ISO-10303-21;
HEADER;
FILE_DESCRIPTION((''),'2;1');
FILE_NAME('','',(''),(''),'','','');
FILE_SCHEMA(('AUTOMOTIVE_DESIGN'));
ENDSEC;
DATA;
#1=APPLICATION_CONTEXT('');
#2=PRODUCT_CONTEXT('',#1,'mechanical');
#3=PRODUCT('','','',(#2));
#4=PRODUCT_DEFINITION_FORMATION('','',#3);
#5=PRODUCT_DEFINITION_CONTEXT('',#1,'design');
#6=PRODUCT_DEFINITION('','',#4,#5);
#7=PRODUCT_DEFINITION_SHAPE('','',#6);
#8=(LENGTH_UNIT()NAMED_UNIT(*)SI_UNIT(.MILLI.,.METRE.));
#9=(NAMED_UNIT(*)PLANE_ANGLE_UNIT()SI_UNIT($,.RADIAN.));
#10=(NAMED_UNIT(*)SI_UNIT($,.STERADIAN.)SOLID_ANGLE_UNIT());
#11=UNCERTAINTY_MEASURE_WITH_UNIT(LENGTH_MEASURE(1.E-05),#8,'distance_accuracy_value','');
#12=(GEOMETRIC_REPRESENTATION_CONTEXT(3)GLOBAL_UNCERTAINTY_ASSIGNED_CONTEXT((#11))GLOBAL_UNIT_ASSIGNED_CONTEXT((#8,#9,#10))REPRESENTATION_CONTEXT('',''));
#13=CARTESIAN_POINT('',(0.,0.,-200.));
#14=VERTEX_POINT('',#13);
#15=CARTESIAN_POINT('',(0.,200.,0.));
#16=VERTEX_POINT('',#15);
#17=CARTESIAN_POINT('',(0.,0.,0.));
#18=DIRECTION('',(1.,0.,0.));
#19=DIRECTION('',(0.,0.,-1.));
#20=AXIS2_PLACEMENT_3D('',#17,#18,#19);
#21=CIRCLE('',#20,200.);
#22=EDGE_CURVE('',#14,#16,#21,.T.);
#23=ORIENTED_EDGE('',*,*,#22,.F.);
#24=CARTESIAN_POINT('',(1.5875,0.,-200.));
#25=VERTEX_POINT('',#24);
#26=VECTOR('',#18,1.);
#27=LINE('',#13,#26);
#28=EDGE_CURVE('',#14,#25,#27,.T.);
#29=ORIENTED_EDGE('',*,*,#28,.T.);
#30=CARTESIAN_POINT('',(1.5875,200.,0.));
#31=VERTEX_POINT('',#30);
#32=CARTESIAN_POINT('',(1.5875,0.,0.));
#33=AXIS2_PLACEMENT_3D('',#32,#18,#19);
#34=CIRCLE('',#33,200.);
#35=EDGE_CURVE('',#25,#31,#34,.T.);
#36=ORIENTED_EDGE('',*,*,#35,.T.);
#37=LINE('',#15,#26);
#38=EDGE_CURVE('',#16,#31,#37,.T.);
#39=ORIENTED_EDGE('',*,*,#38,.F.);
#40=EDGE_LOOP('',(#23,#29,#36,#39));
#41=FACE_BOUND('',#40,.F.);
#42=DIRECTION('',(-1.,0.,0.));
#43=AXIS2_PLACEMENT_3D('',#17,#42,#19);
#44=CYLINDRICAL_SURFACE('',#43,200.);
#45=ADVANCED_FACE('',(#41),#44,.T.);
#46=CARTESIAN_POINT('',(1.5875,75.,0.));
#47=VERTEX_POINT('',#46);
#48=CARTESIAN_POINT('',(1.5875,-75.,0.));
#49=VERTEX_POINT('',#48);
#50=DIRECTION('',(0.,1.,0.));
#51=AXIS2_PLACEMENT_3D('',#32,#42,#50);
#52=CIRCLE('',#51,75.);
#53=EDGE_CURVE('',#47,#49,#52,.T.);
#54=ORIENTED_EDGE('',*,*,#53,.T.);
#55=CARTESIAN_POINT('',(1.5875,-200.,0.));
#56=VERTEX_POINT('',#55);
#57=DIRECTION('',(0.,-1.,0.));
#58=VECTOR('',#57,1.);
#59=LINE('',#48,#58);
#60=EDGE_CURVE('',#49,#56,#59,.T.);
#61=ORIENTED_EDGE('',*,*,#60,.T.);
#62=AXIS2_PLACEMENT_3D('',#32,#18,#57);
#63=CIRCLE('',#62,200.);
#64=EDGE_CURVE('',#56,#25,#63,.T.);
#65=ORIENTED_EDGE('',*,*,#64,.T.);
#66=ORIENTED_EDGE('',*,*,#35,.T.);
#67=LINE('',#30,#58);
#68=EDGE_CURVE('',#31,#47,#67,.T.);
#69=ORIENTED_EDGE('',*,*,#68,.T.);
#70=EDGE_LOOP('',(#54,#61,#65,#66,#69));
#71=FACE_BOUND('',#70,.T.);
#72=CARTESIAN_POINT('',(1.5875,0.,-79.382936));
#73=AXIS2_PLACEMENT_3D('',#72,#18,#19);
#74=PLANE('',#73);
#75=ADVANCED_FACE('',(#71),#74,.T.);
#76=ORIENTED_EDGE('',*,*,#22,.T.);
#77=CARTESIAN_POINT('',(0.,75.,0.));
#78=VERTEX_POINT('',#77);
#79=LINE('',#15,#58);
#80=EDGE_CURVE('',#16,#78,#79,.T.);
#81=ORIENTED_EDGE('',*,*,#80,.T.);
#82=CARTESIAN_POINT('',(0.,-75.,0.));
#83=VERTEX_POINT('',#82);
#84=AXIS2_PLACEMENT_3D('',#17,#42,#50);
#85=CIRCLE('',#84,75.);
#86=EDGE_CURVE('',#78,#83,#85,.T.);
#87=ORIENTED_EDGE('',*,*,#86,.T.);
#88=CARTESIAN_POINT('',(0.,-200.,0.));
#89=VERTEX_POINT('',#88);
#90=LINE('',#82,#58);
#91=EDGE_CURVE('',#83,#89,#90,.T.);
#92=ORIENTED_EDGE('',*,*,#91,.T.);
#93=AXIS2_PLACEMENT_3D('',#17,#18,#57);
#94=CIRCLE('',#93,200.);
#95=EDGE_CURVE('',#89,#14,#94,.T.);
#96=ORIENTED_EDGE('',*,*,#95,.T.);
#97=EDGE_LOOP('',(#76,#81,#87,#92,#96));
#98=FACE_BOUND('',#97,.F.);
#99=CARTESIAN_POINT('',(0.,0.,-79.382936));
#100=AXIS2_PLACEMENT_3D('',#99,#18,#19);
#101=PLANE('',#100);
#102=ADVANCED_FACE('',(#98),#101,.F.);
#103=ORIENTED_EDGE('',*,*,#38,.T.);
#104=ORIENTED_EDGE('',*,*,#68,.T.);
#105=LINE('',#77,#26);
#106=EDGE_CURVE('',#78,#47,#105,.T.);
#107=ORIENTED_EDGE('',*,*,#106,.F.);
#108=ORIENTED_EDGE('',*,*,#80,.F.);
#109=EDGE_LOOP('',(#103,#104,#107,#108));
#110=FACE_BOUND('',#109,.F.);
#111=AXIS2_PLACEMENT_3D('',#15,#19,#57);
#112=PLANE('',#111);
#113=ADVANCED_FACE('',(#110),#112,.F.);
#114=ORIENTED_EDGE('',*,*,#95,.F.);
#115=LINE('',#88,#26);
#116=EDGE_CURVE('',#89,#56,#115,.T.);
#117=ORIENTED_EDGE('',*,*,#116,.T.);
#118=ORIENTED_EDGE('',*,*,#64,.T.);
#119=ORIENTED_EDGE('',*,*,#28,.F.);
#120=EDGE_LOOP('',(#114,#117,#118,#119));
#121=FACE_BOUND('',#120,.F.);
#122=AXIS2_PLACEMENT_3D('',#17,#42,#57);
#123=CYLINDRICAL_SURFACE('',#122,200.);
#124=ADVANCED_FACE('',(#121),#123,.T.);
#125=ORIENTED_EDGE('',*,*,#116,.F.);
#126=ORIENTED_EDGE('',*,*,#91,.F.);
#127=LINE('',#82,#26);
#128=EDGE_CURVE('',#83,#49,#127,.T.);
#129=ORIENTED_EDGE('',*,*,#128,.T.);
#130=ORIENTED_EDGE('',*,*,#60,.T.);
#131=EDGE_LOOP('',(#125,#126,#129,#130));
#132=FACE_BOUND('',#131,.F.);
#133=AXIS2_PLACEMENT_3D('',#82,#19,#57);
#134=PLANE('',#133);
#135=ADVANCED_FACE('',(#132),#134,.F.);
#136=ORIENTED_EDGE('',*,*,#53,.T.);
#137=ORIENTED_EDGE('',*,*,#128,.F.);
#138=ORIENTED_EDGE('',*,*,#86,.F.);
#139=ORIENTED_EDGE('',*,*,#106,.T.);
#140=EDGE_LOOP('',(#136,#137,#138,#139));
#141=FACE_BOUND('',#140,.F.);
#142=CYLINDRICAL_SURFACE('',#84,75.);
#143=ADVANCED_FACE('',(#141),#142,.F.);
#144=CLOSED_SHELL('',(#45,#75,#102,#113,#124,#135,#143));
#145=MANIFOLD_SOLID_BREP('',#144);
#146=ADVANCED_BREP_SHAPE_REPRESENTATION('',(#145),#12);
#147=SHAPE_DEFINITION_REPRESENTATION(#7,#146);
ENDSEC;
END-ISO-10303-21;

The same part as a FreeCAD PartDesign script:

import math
import FreeCAD as App
import Part
import Sketcher
from FreeCAD import Vector
Q = App.Units.Quantity

doc = App.newDocument("Part")
params = doc.addObject("Spreadsheet::Sheet", "Params")
for row, (alias, value) in enumerate([
    ("sketch1_radius", "200 mm"),
    ("sketch1_radius2", "75 mm"),
    ("pad1_length", "1.5875 mm"),
], start=1):
    params.set(f"A{row}", alias)
    params.set(f"B{row}", "=" + value)
    params.setAlias(f"B{row}", alias)

body = doc.addObject("PartDesign::Body", "Body")

# Sketch on YZ plane
sketch1 = body.newObject("Sketcher::SketchObject", "Sketch")
sketch1.AttachmentSupport = (doc.getObject("YZ_Plane"), [""])
sketch1.MapMode = "FlatFace"
sketch1.addGeometry([
    Part.ArcOfCircle(Part.Circle(Vector(0, 0, 0), Vector(0, 0, 1), 200), math.radians(-90), math.radians(0)),  # 0
    Part.LineSegment(Vector(200, 0, 0), Vector(75, 0, 0)),  # 1
    Part.ArcOfCircle(Part.Circle(Vector(0, 0, 0), Vector(0, 0, 1), 75), math.radians(180), math.radians(360)),  # 2
    Part.LineSegment(Vector(-75, 0, 0), Vector(-200, 0, 0)),  # 3
    Part.ArcOfCircle(Part.Circle(Vector(0, 0, 0), Vector(0, 0, 1), 200), math.radians(-180), math.radians(-90)),  # 4
], False)
sketch1.addConstraint([
    Sketcher.Constraint("Coincident", 0, 2, 1, 1),
    Sketcher.Constraint("Coincident", 1, 2, 2, 2),
    Sketcher.Constraint("Coincident", 2, 1, 3, 1),
    Sketcher.Constraint("Coincident", 3, 2, 4, 1),
    Sketcher.Constraint("Tangent", 4, 2, 0, 1),
    Sketcher.Constraint("Horizontal", 1),
    Sketcher.Constraint("Horizontal", 3),
    Sketcher.Constraint("Coincident", 0, 3, -1, 1),
    Sketcher.Constraint("Coincident", 2, 3, -1, 1),
    Sketcher.Constraint("Equal", 0, 4),
    Sketcher.Constraint("PointOnObject", 0, 2, -1),
    Sketcher.Constraint("PointOnObject", 2, 1, -1),
    Sketcher.Constraint("PointOnObject", 4, 2, -2),
    Sketcher.Constraint("Radius", 0, Q("200 mm")),
    Sketcher.Constraint("Radius", 2, Q("75 mm")),
])
sketch1.setExpression("Constraints[13]", "Params.sketch1_radius")
sketch1.setExpression("Constraints[14]", "Params.sketch1_radius2")
pad1 = body.newObject("PartDesign::Pad", "Pad")
pad1.Profile = sketch1
pad1.setExpression("Length", "Params.pad1_length")

doc.recompute()
